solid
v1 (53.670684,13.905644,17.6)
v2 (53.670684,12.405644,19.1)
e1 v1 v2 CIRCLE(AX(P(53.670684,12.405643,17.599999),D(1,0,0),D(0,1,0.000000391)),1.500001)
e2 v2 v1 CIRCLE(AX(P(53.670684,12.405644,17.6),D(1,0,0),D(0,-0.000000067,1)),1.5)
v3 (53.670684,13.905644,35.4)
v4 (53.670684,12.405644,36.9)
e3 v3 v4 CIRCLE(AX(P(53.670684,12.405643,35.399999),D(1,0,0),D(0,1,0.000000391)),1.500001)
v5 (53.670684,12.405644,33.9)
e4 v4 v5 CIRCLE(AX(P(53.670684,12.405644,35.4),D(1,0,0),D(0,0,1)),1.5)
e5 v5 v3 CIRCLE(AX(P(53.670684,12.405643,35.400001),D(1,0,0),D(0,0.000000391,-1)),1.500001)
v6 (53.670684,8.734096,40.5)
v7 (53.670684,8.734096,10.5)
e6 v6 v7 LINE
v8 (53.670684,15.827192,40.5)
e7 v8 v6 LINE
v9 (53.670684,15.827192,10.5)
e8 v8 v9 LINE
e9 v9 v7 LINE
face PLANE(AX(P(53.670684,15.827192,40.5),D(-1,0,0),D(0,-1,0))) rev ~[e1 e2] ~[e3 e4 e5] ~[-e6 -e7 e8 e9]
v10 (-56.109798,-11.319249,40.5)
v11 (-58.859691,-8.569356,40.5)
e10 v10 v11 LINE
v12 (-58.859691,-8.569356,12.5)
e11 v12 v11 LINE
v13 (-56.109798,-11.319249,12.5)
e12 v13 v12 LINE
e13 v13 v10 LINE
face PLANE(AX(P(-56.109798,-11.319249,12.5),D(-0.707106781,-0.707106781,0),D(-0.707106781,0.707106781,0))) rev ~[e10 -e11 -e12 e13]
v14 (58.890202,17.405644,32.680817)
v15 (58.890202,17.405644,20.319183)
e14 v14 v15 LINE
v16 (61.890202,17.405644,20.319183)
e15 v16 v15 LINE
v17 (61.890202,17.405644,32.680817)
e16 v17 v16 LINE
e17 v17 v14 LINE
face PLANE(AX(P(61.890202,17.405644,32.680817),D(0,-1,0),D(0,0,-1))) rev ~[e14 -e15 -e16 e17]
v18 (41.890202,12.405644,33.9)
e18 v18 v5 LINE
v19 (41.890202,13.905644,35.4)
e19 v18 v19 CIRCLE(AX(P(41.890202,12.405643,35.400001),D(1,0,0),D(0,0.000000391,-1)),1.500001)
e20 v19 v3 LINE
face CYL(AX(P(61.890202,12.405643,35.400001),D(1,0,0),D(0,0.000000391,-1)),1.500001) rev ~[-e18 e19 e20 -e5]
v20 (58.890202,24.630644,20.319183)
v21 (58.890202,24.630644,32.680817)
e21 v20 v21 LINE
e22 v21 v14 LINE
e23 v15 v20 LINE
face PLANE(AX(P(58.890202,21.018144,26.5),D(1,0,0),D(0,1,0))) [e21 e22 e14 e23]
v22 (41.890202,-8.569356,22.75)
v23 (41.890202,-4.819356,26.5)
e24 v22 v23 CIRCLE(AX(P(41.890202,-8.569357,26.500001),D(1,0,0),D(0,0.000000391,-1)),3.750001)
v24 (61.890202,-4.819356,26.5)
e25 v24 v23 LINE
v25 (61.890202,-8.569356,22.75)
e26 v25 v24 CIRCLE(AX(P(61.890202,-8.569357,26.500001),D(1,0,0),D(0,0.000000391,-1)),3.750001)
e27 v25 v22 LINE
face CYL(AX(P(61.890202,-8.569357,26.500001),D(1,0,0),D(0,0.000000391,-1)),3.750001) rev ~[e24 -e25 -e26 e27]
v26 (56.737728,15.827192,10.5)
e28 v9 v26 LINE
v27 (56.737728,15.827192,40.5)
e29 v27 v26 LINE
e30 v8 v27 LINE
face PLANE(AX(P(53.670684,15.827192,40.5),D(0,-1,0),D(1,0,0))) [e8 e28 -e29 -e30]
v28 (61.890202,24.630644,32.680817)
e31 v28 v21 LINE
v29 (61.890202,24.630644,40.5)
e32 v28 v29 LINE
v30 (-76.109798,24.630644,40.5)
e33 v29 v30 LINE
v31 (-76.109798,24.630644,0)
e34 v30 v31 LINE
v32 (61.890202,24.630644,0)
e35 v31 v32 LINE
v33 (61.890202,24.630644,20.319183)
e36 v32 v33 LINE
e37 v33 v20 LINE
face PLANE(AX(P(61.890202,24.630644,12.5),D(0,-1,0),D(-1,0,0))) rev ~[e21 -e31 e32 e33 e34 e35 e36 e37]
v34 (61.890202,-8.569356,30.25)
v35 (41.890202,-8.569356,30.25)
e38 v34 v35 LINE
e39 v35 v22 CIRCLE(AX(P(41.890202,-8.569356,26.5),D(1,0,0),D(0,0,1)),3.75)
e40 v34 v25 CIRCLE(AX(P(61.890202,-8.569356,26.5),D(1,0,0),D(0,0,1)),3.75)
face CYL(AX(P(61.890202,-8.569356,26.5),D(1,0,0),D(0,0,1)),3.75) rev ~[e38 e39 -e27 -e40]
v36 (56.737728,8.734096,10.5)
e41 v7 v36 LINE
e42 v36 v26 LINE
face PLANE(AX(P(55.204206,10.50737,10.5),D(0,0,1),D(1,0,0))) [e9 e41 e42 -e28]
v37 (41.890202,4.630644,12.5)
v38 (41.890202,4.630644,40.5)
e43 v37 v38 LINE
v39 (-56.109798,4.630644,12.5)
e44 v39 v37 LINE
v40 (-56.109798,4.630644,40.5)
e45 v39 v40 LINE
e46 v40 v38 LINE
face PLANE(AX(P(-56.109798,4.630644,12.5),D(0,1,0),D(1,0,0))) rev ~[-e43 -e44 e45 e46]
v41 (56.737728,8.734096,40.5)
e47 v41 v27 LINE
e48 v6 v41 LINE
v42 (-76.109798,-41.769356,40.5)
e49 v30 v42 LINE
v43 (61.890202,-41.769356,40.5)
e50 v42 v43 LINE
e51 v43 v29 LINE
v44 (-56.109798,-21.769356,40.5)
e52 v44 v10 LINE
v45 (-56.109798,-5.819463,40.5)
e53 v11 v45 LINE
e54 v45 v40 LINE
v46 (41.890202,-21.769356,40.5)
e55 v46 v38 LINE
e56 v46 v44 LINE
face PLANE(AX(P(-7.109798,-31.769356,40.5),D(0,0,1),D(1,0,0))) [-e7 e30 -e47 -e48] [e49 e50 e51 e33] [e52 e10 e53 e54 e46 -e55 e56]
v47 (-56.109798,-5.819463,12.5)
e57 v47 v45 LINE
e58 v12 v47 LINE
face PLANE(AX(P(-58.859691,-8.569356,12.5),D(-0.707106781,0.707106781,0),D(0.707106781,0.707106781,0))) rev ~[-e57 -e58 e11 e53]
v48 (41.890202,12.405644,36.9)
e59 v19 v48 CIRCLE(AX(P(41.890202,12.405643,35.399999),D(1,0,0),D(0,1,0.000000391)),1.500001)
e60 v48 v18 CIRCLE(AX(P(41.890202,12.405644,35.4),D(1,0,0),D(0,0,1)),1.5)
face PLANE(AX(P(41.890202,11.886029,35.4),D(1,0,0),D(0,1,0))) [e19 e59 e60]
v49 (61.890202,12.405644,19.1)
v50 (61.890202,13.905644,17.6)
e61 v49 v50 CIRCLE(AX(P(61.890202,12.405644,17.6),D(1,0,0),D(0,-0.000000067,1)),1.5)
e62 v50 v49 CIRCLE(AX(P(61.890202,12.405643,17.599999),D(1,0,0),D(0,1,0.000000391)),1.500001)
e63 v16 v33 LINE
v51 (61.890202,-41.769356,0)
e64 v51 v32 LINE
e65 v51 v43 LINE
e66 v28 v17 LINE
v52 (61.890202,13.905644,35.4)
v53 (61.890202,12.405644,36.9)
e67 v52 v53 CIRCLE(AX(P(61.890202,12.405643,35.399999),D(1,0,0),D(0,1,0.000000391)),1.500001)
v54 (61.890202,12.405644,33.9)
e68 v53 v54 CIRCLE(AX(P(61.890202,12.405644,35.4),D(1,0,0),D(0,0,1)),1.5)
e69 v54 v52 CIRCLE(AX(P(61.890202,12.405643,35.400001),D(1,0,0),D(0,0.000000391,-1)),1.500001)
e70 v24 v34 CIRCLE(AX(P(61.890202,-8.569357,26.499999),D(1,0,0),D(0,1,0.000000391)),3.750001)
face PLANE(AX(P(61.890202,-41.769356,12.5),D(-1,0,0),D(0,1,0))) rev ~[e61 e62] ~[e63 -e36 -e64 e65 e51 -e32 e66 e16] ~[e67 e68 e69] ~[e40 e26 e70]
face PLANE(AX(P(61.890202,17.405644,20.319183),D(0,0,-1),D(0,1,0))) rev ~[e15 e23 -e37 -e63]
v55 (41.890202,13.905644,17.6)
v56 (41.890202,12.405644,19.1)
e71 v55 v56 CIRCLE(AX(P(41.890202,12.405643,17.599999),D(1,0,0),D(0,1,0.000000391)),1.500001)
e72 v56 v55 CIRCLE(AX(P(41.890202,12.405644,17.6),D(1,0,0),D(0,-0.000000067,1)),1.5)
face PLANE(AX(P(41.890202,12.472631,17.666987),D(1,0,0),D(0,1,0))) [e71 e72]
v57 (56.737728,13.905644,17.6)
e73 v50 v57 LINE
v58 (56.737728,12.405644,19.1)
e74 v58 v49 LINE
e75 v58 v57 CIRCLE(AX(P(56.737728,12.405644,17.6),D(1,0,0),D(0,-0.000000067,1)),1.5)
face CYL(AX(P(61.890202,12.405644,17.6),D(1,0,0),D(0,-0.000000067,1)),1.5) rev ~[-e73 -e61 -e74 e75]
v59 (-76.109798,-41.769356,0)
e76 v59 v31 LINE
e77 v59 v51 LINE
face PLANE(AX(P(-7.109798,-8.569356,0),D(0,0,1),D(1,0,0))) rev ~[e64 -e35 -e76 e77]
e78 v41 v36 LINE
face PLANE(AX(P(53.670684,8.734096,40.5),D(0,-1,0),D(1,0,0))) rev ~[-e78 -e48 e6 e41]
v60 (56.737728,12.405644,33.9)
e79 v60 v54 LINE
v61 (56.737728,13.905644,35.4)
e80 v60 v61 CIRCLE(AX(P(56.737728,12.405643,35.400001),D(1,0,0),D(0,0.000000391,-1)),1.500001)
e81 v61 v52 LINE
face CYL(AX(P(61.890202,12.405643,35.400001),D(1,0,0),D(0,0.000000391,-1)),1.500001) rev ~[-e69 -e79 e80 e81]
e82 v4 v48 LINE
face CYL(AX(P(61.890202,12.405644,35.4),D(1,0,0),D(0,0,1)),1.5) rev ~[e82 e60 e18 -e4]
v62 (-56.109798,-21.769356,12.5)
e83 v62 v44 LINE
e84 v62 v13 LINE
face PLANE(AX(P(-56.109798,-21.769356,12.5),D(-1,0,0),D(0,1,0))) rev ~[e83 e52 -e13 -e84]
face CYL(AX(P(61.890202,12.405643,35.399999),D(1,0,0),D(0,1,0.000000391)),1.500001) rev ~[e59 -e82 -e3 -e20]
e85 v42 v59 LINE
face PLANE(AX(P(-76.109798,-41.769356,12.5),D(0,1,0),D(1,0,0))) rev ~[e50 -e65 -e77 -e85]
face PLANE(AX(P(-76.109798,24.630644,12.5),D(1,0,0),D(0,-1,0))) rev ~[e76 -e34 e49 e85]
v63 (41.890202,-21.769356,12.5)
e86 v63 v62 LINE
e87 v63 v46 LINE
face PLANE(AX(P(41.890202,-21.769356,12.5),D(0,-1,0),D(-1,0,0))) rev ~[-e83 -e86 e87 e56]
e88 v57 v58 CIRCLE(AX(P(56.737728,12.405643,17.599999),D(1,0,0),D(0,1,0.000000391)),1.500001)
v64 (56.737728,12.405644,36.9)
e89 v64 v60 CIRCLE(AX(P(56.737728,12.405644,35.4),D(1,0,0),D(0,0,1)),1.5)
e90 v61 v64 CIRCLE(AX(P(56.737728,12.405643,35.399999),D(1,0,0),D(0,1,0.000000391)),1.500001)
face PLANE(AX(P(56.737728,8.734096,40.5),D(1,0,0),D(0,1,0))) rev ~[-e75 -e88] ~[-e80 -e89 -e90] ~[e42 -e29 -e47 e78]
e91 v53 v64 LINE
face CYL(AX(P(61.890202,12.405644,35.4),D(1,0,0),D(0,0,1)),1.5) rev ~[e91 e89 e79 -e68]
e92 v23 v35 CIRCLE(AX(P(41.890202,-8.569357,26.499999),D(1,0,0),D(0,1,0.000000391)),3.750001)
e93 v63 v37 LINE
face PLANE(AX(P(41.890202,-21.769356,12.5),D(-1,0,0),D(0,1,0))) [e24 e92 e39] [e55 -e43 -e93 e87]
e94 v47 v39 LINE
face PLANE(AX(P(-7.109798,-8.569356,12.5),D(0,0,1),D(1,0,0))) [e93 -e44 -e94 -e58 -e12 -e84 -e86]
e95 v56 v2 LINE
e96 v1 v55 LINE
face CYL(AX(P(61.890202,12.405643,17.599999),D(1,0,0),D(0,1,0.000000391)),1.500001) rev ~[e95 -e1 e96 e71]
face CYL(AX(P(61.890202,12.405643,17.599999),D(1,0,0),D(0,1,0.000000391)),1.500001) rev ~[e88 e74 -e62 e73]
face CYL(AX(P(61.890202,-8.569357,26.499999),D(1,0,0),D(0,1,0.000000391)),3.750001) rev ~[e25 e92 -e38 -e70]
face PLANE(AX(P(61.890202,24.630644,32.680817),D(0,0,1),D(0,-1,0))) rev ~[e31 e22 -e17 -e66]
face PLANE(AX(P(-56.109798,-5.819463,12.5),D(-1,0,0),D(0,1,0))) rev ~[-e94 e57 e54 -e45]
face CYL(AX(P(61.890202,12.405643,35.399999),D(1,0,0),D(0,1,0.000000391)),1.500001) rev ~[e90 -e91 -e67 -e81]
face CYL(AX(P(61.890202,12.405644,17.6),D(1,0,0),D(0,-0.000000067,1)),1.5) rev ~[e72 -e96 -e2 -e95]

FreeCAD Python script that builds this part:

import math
import FreeCAD as App
import Part
import Sketcher

V = App.Vector
Q = App.Units.Quantity


def add_polygon(sketch, points):
    """Adds a closed chain of lines whose ends are joined by coincident constraints."""
    first, n = sketch.GeometryCount, len(points)
    for a, b in zip(points, points[1:] + points[:1]):
        sketch.addGeometry(Part.LineSegment(App.Vector(*a, 0), App.Vector(*b, 0)), False)
    for i in range(n):
        sketch.addConstraint(Sketcher.Constraint("Coincident", first + i, 2, first + (i + 1) % n, 1))

doc = App.newDocument("Part")
params = doc.addObject("Spreadsheet::Sheet", "Params")
for row, (alias, value) in enumerate([
    ("sketch1_width", "138 mm"),
    ("sketch1_height", "66.4 mm"),
    ("pad1_length", "12.5 mm"),
    ("sketch2_width", "138 mm"),
    ("sketch2_width2", "98 mm"),
    ("sketch2_height", "66.4 mm"),
    ("sketch2_height2", "26.4 mm"),
    ("pad2_length", "28 mm"),
    ("sketch3_radius", "3.750001 mm"),
    ("pocket1_length", "25 mm"),
    ("pocket2_length", "3 mm"),
    ("sketch5_radius", "1.500001 mm"),
    ("pocket3_length", "20 mm"),
    ("sketch6_radius", "1.500001 mm"),
    ("pocket4_length", "15 mm"),
    ("pocket5_length", "30 mm"),
], start=1):
    params.set(f"A{row}", alias)
    params.set(f"B{row}", "=" + value)
    params.setAlias(f"B{row}", alias)

body = doc.addObject("PartDesign::Body", "Body")

# Sketch on XY plane
sketch1 = body.newObject("Sketcher::SketchObject", "Sketch")
sketch1.AttachmentSupport = (doc.getObject("XY_Plane"), [""])
sketch1.MapMode = "FlatFace"
add_polygon(sketch1, [(-76, 25), (-76, -42), (62, -42), (62, 25)])  # lines 0-3
sketch1.addConstraint(Sketcher.Constraint("Vertical", 0))
sketch1.addConstraint(Sketcher.Constraint("Horizontal", 1))
sketch1.addConstraint(Sketcher.Constraint("Vertical", 2))
sketch1.addConstraint(Sketcher.Constraint("Horizontal", 3))
sketch1.addConstraint(Sketcher.Constraint("DistanceX", 1, 1, 1, 2, Q("138 mm")))
sketch1.addConstraint(Sketcher.Constraint("DistanceY", 0, 2, 0, 1, Q("66.4 mm")))
sketch1.addConstraint(Sketcher.Constraint("DistanceX", 0, 2, -1, 1, Q("76.109798 mm")))
sketch1.addConstraint(Sketcher.Constraint("DistanceY", 0, 2, -1, 1, Q("41.769356 mm")))
sketch1.setExpression("Constraints[8]", "Params.sketch1_width")
sketch1.setExpression("Constraints[9]", "Params.sketch1_height")
pad1 = body.newObject("PartDesign::Pad", "Pad")
pad1.Profile = sketch1
pad1.setExpression("Length", "Params.pad1_length")

# Sketch on XY plane
sketch2 = body.newObject("Sketcher::SketchObject", "Sketch001")
sketch2.AttachmentSupport = (doc.getObject("XY_Plane"), [""])
sketch2.MapMode = "FlatFace"
sketch2.AttachmentOffset = App.Placement(V(0, 0, 12.5), App.Rotation())
add_polygon(sketch2, [(-76.1, -41.8), (61.9, -41.8), (61.9, 24.6), (-76.1, 24.6)])  # lines 0-3
add_polygon(sketch2, [(41.9, 4.6), (41.9, -21.8), (-56.1, -21.8), (-56.1, -11.3), (-58.9, -8.6), (-56.1, -5.8), (-56.1, 4.6)])  # lines 4-10
sketch2.addConstraint(Sketcher.Constraint("Horizontal", 0))
sketch2.addConstraint(Sketcher.Constraint("Vertical", 1))
sketch2.addConstraint(Sketcher.Constraint("Horizontal", 2))
sketch2.addConstraint(Sketcher.Constraint("Vertical", 3))
sketch2.addConstraint(Sketcher.Constraint("Vertical", 4))
sketch2.addConstraint(Sketcher.Constraint("Horizontal", 5))
sketch2.addConstraint(Sketcher.Constraint("Vertical", 6))
sketch2.addConstraint(Sketcher.Constraint("Vertical", 9))
sketch2.addConstraint(Sketcher.Constraint("Horizontal", 10))
sketch2.addConstraint(Sketcher.Constraint("Perpendicular", 7, 8))
sketch2.addConstraint(Sketcher.Constraint("Vertical", 6, 2, 8, 2))
sketch2.addConstraint(Sketcher.Constraint("Equal", 6, 9))
sketch2.addConstraint(Sketcher.Constraint("Equal", 7, 8))
sketch2.addConstraint(Sketcher.Constraint("DistanceX", 0, 1, 0, 2, Q("138 mm")))
sketch2.addConstraint(Sketcher.Constraint("DistanceX", 5, 2, 5, 1, Q("98 mm")))
sketch2.addConstraint(Sketcher.Constraint("DistanceY", 1, 1, 1, 2, Q("66.4 mm")))
sketch2.addConstraint(Sketcher.Constraint("DistanceY", 4, 2, 4, 1, Q("26.4 mm")))
sketch2.addConstraint(Sketcher.Constraint("DistanceX", 4, 2, 0, 2, Q("20 mm")))
sketch2.addConstraint(Sketcher.Constraint("DistanceY", 0, 2, 4, 2, Q("20 mm")))
sketch2.addConstraint(Sketcher.Constraint("DistanceY", 6, 1, 6, 2, Q("10.450107 mm")))
sketch2.addConstraint(Sketcher.Constraint("DistanceY", 6, 2, -1, 1, Q("11.319249 mm")))
sketch2.addConstraint(Sketcher.Constraint("DistanceX", 7, 2, -1, 1, Q("58.859691 mm")))
sketch2.setExpression("Constraints[24]", "Params.sketch2_width")
sketch2.setExpression("Constraints[25]", "Params.sketch2_width2")
sketch2.setExpression("Constraints[26]", "Params.sketch2_height")
sketch2.setExpression("Constraints[27]", "Params.sketch2_height2")
pad2 = body.newObject("PartDesign::Pad", "Pad001")
pad2.Profile = sketch2
pad2.setExpression("Length", "Params.pad2_length")

# Sketch on YZ plane
sketch3 = body.newObject("Sketcher::SketchObject", "Sketch002")
sketch3.AttachmentSupport = (doc.getObject("YZ_Plane"), [""])
sketch3.MapMode = "FlatFace"
sketch3.AttachmentOffset = App.Placement(V(0, 0, 61.890202), App.Rotation())
sketch3.addGeometry(Part.ArcOfCircle(Part.Circle(V(-8.6, 26.5, 0), V(0, 0, 1), 3.8), math.radians(-90), math.radians(0)), False)
sketch3.addGeometry(Part.ArcOfCircle(Part.Circle(V(-8.6, 26.5, 0), V(0, 0, 1), 3.8), math.radians(0), math.radians(90)), False)
sketch3.addGeometry(Part.ArcOfCircle(Part.Circle(V(-8.6, 26.5, 0), V(0, 0, 1), 3.8), math.radians(90), math.radians(270)), False)
sketch3.addConstraint(Sketcher.Constraint("Tangent", 0, 2, 1, 1))
sketch3.addConstraint(Sketcher.Constraint("Tangent", 1, 2, 2, 1))
sketch3.addConstraint(Sketcher.Constraint("Tangent", 2, 2, 0, 1))
sketch3.addConstraint(Sketcher.Constraint("Horizontal", 2, 3, 0, 2))
sketch3.addConstraint(Sketcher.Constraint("Vertical", 2, 3, 1, 2))
sketch3.addConstraint(Sketcher.Constraint("Vertical", 1, 2, 2, 2))
sketch3.addConstraint(Sketcher.Constraint("Radius", 0, Q("3.750001 mm")))
sketch3.addConstraint(Sketcher.Constraint("DistanceY", -1, 1, 0, 3, Q("26.500001 mm")))
sketch3.addConstraint(Sketcher.Constraint("DistanceX", 0, 3, -1, 1, Q("8.569357 mm")))
sketch3.setExpression("Constraints[6]", "Params.sketch3_radius")
pocket1 = body.newObject("PartDesign::Pocket", "Pocket")
pocket1.Profile = sketch3
pocket1.setExpression("Length", "Params.pocket1_length")

# Sketch on YZ plane
sketch4 = body.newObject("Sketcher::SketchObject", "Sketch003")
sketch4.AttachmentSupport = (doc.getObject("YZ_Plane"), [""])
sketch4.MapMode = "FlatFace"
sketch4.AttachmentOffset = App.Placement(V(0, 0, 61.890202), App.Rotation())
add_polygon(sketch4, [(17, 33), (17, 20), (25, 20), (25, 33)])  # lines 0-3
sketch4.addConstraint(Sketcher.Constraint("Vertical", 0))
sketch4.addConstraint(Sketcher.Constraint("Horizontal", 1))
sketch4.addConstraint(Sketcher.Constraint("Vertical", 2))
sketch4.addConstraint(Sketcher.Constraint("Horizontal", 3))
sketch4.addConstraint(Sketcher.Constraint("DistanceX", 1, 1, 1, 2, Q("7.225 mm")))
sketch4.addConstraint(Sketcher.Constraint("DistanceY", 0, 2, 0, 1, Q("12.361634 mm")))
sketch4.addConstraint(Sketcher.Constraint("DistanceX", -1, 1, 0, 2, Q("17.405644 mm")))
sketch4.addConstraint(Sketcher.Constraint("DistanceY", -1, 1, 0, 2, Q("20.319183 mm")))
pocket2 = body.newObject("PartDesign::Pocket", "Pocket001")
pocket2.Profile = sketch4
pocket2.setExpression("Length", "Params.pocket2_length")

# Sketch on YZ plane
sketch5 = body.newObject("Sketcher::SketchObject", "Sketch004")
sketch5.AttachmentSupport = (doc.getObject("YZ_Plane"), [""])
sketch5.MapMode = "FlatFace"
sketch5.AttachmentOffset = App.Placement(V(0, 0, 61.890202), App.Rotation())
sketch5.addGeometry(Part.ArcOfCircle(Part.Circle(V(12.4, 17.6, 0), V(0, 0, 1), 1.5), math.radians(0), math.radians(90)), False)
sketch5.addGeometry(Part.ArcOfCircle(Part.Circle(V(12.4, 17.6, 0), V(0, 0, 1), 1.5), math.radians(90), math.radians(360)), False)
sketch5.addGeometry(Part.ArcOfCircle(Part.Circle(V(12.4, 35.4, 0), V(0, 0, 1), 1.5), math.radians(90), math.radians(270)), False)
sketch5.addGeometry(Part.ArcOfCircle(Part.Circle(V(12.4, 35.4, 0), V(0, 0, 1), 1.5), math.radians(-90), math.radians(0)), False)
sketch5.addGeometry(Part.ArcOfCircle(Part.Circle(V(12.4, 35.4, 0), V(0, 0, 1), 1.5), math.radians(0), math.radians(90)), False)
sketch5.addConstraint(Sketcher.Constraint("Tangent", 0, 1, 1, 2))
sketch5.addConstraint(Sketcher.Constraint("Coincident", 1, 1, 0, 2))
sketch5.addConstraint(Sketcher.Constraint("Tangent", 2, 2, 3, 1))
sketch5.addConstraint(Sketcher.Constraint("Tangent", 3, 2, 4, 1))
sketch5.addConstraint(Sketcher.Constraint("Tangent", 4, 2, 2, 1))
sketch5.addConstraint(Sketcher.Constraint("Equal", 1, 2))
sketch5.addConstraint(Sketcher.Constraint("Horizontal", 1, 3, 0, 1))
sketch5.addConstraint(Sketcher.Constraint("Horizontal", 4, 3, 3, 2))
sketch5.addConstraint(Sketcher.Constraint("Vertical", 1, 3, 2, 3))
sketch5.addConstraint(Sketcher.Constraint("Vertical", 4, 3, 1, 1))
sketch5.addConstraint(Sketcher.Constraint("Vertical", 1, 1, 2, 2))
sketch5.addConstraint(Sketcher.Constraint("Vertical", 2, 2, 4, 2))
sketch5.addConstraint(Sketcher.Constraint("Radius", 0, Q("1.500001 mm")))
sketch5.addConstraint(Sketcher.Constraint("DistanceY", -1, 1, 0, 3, Q("17.599999 mm")))
sketch5.addConstraint(Sketcher.Constraint("DistanceY", -1, 1, 2, 3, Q("35.4 mm")))
sketch5.addConstraint(Sketcher.Constraint("DistanceX", -1, 1, 0, 3, Q("12.405643 mm")))
sketch5.setExpression("Constraints[12]", "Params.sketch5_radius")
pocket3 = body.newObject("PartDesign::Pocket", "Pocket002")
pocket3.Profile = sketch5
pocket3.setExpression("Length", "Params.pocket3_length")

# Sketch on YZ plane
sketch6 = body.newObject("Sketcher::SketchObject", "Sketch005")
sketch6.AttachmentSupport = (doc.getObject("YZ_Plane"), [""])
sketch6.MapMode = "FlatFace"
sketch6.AttachmentOffset = App.Placement(V(0, 0, 61.890202), App.Rotation())
sketch6.addGeometry(Part.ArcOfCircle(Part.Circle(V(12.4, 35.4, 0), V(0, 0, 1), 1.5), math.radians(-90), math.radians(0)), False)
sketch6.addGeometry(Part.ArcOfCircle(Part.Circle(V(12.4, 35.4, 0), V(0, 0, 1), 1.5), math.radians(0), math.radians(90)), False)
sketch6.addGeometry(Part.ArcOfCircle(Part.Circle(V(12.4, 35.4, 0), V(0, 0, 1), 1.5), math.radians(90), math.radians(270)), False)
sketch6.addGeometry(Part.ArcOfCircle(Part.Circle(V(12.4, 17.6, 0), V(0, 0, 1), 1.5), math.radians(0), math.radians(90)), False)
sketch6.addGeometry(Part.ArcOfCircle(Part.Circle(V(12.4, 17.6, 0), V(0, 0, 1), 1.5), math.radians(90), math.radians(360)), False)
sketch6.addConstraint(Sketcher.Constraint("Tangent", 0, 2, 1, 1))
sketch6.addConstraint(Sketcher.Constraint("Tangent", 1, 2, 2, 1))
sketch6.addConstraint(Sketcher.Constraint("Tangent", 2, 2, 0, 1))
sketch6.addConstraint(Sketcher.Constraint("Tangent", 3, 1, 4, 2))
sketch6.addConstraint(Sketcher.Constraint("Coincident", 4, 1, 3, 2))
sketch6.addConstraint(Sketcher.Constraint("Equal", 2, 3))
sketch6.addConstraint(Sketcher.Constraint("Horizontal", 2, 3, 0, 2))
sketch6.addConstraint(Sketcher.Constraint("Horizontal", 4, 3, 3, 1))
sketch6.addConstraint(Sketcher.Constraint("Vertical", 2, 3, 3, 3))
sketch6.addConstraint(Sketcher.Constraint("Vertical", 4, 3, 1, 2))
sketch6.addConstraint(Sketcher.Constraint("Vertical", 1, 2, 2, 2))
sketch6.addConstraint(Sketcher.Constraint("Vertical", 2, 2, 4, 1))
sketch6.addConstraint(Sketcher.Constraint("Radius", 0, Q("1.500001 mm")))
sketch6.addConstraint(Sketcher.Constraint("DistanceY", -1, 1, 0, 3, Q("35.400001 mm")))
sketch6.addConstraint(Sketcher.Constraint("DistanceY", -1, 1, 3, 3, Q("17.599999 mm")))
sketch6.addConstraint(Sketcher.Constraint("DistanceX", -1, 1, 0, 3, Q("12.405643 mm")))
sketch6.setExpression("Constraints[12]", "Params.sketch6_radius")
pocket4 = body.newObject("PartDesign::Pocket", "Pocket003")
pocket4.Profile = sketch6
pocket4.setExpression("Length", "Params.pocket4_length")

# Sketch on XY plane
sketch7 = body.newObject("Sketcher::SketchObject", "Sketch006")
sketch7.AttachmentSupport = (doc.getObject("XY_Plane"), [""])
sketch7.MapMode = "FlatFace"
sketch7.AttachmentOffset = App.Placement(V(0, 0, 40.5), App.Rotation())
add_polygon(sketch7, [(53.7, 8.7), (56.7, 8.7), (56.7, 15.8), (53.7, 15.8)])  # lines 0-3
sketch7.addConstraint(Sketcher.Constraint("Horizontal", 0))
sketch7.addConstraint(Sketcher.Constraint("Vertical", 1))
sketch7.addConstraint(Sketcher.Constraint("Horizontal", 2))
sketch7.addConstraint(Sketcher.Constraint("Vertical", 3))
sketch7.addConstraint(Sketcher.Constraint("DistanceX", 0, 1, 0, 2, Q("3.067044 mm")))
sketch7.addConstraint(Sketcher.Constraint("DistanceY", 1, 1, 1, 2, Q("7.093096 mm")))
sketch7.addConstraint(Sketcher.Constraint("DistanceX", -1, 1, 0, 2, Q("56.737728 mm")))
sketch7.addConstraint(Sketcher.Constraint("DistanceY", -1, 1, 0, 2, Q("8.734096 mm")))
pocket5 = body.newObject("PartDesign::Pocket", "Pocket004")
pocket5.Profile = sketch7
pocket5.setExpression("Length", "Params.pocket5_length")

doc.recompute()
